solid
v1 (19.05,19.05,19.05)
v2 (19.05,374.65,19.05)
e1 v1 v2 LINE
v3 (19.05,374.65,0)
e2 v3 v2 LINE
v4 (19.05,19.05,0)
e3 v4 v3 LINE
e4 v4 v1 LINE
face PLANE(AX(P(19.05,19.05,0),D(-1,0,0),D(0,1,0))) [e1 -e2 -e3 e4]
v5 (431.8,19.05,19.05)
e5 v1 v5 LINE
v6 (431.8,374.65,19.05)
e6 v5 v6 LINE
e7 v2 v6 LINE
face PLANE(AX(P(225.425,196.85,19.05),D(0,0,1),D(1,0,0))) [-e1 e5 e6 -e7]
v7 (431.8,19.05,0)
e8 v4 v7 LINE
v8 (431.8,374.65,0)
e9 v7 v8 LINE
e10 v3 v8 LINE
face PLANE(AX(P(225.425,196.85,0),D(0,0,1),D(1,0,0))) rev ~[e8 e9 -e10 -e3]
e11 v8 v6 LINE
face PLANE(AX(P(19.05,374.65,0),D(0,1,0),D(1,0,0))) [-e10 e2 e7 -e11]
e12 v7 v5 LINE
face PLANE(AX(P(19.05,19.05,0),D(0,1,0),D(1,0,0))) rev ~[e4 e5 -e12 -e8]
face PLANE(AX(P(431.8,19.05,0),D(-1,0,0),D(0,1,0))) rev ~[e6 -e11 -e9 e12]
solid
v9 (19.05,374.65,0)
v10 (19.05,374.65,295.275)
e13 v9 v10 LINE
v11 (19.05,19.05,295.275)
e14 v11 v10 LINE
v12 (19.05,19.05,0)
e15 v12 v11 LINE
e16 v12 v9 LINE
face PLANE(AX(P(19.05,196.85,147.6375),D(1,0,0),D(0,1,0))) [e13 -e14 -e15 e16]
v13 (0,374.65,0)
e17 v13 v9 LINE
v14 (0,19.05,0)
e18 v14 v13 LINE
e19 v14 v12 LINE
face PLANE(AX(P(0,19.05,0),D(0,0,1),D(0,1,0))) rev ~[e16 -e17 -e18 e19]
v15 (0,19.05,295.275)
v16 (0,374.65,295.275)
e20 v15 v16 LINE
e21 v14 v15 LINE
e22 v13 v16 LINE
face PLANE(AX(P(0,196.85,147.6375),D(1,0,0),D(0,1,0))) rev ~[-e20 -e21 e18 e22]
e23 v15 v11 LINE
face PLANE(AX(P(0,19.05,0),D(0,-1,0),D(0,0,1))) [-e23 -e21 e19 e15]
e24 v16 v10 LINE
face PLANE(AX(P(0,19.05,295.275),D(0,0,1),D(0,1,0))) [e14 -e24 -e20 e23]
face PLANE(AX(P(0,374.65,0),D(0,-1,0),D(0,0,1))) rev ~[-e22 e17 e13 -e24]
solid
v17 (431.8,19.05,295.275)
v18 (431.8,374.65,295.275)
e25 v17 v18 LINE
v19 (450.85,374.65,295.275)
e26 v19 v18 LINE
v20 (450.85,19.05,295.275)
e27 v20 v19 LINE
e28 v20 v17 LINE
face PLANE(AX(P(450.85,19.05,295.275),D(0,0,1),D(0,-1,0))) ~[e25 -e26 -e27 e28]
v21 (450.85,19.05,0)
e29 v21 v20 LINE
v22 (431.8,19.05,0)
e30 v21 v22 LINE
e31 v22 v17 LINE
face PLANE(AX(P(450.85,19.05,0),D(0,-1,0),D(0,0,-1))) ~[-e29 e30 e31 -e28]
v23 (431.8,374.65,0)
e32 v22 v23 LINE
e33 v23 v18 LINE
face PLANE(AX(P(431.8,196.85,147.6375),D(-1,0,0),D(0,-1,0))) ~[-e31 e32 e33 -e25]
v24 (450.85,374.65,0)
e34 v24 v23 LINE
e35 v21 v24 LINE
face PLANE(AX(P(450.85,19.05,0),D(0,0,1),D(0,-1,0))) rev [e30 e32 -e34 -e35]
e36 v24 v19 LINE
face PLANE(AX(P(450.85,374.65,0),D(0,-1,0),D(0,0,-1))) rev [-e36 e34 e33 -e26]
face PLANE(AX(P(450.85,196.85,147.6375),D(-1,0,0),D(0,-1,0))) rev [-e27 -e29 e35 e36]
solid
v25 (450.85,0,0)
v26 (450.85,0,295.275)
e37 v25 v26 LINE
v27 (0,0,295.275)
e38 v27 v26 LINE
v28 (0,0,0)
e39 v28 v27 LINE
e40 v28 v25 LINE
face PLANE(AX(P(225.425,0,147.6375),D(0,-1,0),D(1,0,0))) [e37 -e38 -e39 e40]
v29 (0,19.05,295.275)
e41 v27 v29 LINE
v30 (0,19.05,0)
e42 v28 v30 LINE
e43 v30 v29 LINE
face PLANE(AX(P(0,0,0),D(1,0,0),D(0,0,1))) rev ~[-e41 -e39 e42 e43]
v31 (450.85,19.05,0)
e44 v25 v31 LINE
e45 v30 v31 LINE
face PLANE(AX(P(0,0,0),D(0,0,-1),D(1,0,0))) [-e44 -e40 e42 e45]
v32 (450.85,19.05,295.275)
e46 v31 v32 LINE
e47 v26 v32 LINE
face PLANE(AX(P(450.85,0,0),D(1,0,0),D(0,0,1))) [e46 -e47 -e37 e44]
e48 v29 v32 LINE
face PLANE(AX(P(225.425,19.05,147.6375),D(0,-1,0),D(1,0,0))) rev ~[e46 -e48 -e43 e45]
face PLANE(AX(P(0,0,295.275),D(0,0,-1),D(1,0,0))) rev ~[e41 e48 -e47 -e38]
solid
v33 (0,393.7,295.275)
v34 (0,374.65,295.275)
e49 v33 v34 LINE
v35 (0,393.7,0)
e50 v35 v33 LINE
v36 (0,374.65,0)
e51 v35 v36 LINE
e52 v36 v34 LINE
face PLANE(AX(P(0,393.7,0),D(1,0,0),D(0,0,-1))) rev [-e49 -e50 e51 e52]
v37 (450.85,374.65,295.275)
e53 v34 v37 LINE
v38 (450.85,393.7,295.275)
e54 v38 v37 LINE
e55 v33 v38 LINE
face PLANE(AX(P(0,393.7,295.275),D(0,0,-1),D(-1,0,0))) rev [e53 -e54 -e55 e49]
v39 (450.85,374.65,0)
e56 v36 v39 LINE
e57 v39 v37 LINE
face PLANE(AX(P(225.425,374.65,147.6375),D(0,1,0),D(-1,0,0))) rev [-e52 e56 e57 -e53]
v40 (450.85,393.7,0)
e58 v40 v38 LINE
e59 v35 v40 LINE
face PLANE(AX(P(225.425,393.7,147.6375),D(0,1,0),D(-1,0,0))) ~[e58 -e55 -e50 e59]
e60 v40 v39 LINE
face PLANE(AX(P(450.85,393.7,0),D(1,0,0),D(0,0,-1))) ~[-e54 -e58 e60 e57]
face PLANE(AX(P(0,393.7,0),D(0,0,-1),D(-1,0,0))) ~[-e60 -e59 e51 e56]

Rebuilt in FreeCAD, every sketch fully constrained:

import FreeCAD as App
import Part
import Sketcher

V = App.Vector
Q = App.Units.Quantity

doc = App.newDocument("Part")
body = doc.addObject("PartDesign::Body", "Body")

# Sketch on XZ plane
sketch1 = body.newObject("Sketcher::SketchObject", "Sketch")
sketch1.AttachmentSupport = (doc.getObject("XZ_Plane"), [""])
sketch1.MapMode = "FlatFace"
sketch1.addGeometry([
    Part.LineSegment(V(0, 295, 0), V(0, 0, 0)),
    Part.LineSegment(V(0, 0, 0), V(451, 0, 0)),
    Part.LineSegment(V(451, 0, 0), V(451, 295, 0)),
    Part.LineSegment(V(451, 295, 0), V(0, 295, 0)),
], False)
sketch1.addConstraint([
    Sketcher.Constraint("Coincident", 0, 2, 1, 1),
    Sketcher.Constraint("Coincident", 1, 2, 2, 1),
    Sketcher.Constraint("Coincident", 2, 2, 3, 1),
    Sketcher.Constraint("Coincident", 3, 2, 0, 1),
    Sketcher.Constraint("Vertical", 0),
    Sketcher.Constraint("Horizontal", 1),
    Sketcher.Constraint("Vertical", 2),
    Sketcher.Constraint("Horizontal", 3),
    Sketcher.Constraint("Coincident", 0, 2, -1, 1),
    Sketcher.Constraint("DistanceX", 1, 1, 1, 2, Q("17.75 in")),
    Sketcher.Constraint("DistanceY", 0, 2, 0, 1, Q("11.625 in")),
])
pad1 = body.newObject("PartDesign::Pad", "Pad")
pad1.Profile = sketch1
pad1.Length = Q("0.75 in")
pad1.Reversed = True
body2 = doc.addObject("PartDesign::Body", "Body001")

# Sketch on YZ plane
sketch2 = body2.newObject("Sketcher::SketchObject", "Sketch001")
sketch2.AttachmentSupport = (doc.getObject("YZ_Plane001"), [""])
sketch2.MapMode = "FlatFace"
sketch2.addGeometry([
    Part.LineSegment(V(19, 295, 0), V(19, 0, 0)),
    Part.LineSegment(V(19, 0, 0), V(375, 0, 0)),
    Part.LineSegment(V(375, 0, 0), V(375, 295, 0)),
    Part.LineSegment(V(375, 295, 0), V(19, 295, 0)),
], False)
sketch2.addConstraint([
    Sketcher.Constraint("Coincident", 0, 2, 1, 1),
    Sketcher.Constraint("Coincident", 1, 2, 2, 1),
    Sketcher.Constraint("Coincident", 2, 2, 3, 1),
    Sketcher.Constraint("Coincident", 3, 2, 0, 1),
    Sketcher.Constraint("Vertical", 0),
    Sketcher.Constraint("Horizontal", 1),
    Sketcher.Constraint("Vertical", 2),
    Sketcher.Constraint("Horizontal", 3),
    Sketcher.Constraint("PointOnObject", 0, 2, -1),
    Sketcher.Constraint("DistanceX", 1, 1, 1, 2, Q("14 in")),
    Sketcher.Constraint("DistanceY", 0, 2, 0, 1, Q("11.625 in")),
    Sketcher.Constraint("DistanceX", -1, 1, 0, 2, Q("0.75 in")),
])
pad2 = body2.newObject("PartDesign::Pad", "Pad001")
pad2.Profile = sketch2
pad2.Length = Q("0.75 in")
body3 = doc.addObject("PartDesign::Body", "Body002")
doc.recompute()

mirroring = doc.addObject("Part::Mirroring", "Mirroring")
mirroring.Source = body
mirroring.Base = V(0, 196.85, 0)
mirroring.Normal = V(0, -1, 0)
body3.BaseFeature = mirroring
doc.recompute()
body4 = doc.addObject("PartDesign::Body", "Body003")
doc.recompute()

mirroring2 = doc.addObject("Part::Mirroring", "Mirroring001")
mirroring2.Source = body2
mirroring2.Base = V(225.425, 0, 0)
mirroring2.Normal = V(1, 0, 0)
body4.BaseFeature = mirroring2
doc.recompute()
body5 = doc.addObject("PartDesign::Body", "Body004")

# Sketch on XY plane
sketch3 = body5.newObject("Sketcher::SketchObject", "Sketch002")
sketch3.AttachmentSupport = (doc.getObject("XY_Plane004"), [""])
sketch3.MapMode = "FlatFace"
sketch3.addGeometry([
    Part.LineSegment(V(19, 375, 0), V(19, 19, 0)),
    Part.LineSegment(V(19, 19, 0), V(432, 19, 0)),
    Part.LineSegment(V(432, 19, 0), V(432, 375, 0)),
    Part.LineSegment(V(432, 375, 0), V(19, 375, 0)),
], False)
sketch3.addConstraint([
    Sketcher.Constraint("Coincident", 0, 2, 1, 1),
    Sketcher.Constraint("Coincident", 1, 2, 2, 1),
    Sketcher.Constraint("Coincident", 2, 2, 3, 1),
    Sketcher.Constraint("Coincident", 3, 2, 0, 1),
    Sketcher.Constraint("Vertical", 0),
    Sketcher.Constraint("Horizontal", 1),
    Sketcher.Constraint("Vertical", 2),
    Sketcher.Constraint("Horizontal", 3),
    Sketcher.Constraint("DistanceY", 0, 2, 0, 1, Q("14 in")),
    Sketcher.Constraint("DistanceX", -1, 1, 1, 2, Q("17 in")),
    Sketcher.Constraint("DistanceX", 1, 1, 1, 2, Q("16.25 in")),
    Sketcher.Constraint("DistanceY", -1, 1, 0, 2, Q("0.75 in")),
])
pad3 = body5.newObject("PartDesign::Pad", "Pad002")
pad3.Profile = sketch3
pad3.Length = Q("0.75 in")
mirroring.Visibility = False
mirroring2.Visibility = False

doc.recompute()
